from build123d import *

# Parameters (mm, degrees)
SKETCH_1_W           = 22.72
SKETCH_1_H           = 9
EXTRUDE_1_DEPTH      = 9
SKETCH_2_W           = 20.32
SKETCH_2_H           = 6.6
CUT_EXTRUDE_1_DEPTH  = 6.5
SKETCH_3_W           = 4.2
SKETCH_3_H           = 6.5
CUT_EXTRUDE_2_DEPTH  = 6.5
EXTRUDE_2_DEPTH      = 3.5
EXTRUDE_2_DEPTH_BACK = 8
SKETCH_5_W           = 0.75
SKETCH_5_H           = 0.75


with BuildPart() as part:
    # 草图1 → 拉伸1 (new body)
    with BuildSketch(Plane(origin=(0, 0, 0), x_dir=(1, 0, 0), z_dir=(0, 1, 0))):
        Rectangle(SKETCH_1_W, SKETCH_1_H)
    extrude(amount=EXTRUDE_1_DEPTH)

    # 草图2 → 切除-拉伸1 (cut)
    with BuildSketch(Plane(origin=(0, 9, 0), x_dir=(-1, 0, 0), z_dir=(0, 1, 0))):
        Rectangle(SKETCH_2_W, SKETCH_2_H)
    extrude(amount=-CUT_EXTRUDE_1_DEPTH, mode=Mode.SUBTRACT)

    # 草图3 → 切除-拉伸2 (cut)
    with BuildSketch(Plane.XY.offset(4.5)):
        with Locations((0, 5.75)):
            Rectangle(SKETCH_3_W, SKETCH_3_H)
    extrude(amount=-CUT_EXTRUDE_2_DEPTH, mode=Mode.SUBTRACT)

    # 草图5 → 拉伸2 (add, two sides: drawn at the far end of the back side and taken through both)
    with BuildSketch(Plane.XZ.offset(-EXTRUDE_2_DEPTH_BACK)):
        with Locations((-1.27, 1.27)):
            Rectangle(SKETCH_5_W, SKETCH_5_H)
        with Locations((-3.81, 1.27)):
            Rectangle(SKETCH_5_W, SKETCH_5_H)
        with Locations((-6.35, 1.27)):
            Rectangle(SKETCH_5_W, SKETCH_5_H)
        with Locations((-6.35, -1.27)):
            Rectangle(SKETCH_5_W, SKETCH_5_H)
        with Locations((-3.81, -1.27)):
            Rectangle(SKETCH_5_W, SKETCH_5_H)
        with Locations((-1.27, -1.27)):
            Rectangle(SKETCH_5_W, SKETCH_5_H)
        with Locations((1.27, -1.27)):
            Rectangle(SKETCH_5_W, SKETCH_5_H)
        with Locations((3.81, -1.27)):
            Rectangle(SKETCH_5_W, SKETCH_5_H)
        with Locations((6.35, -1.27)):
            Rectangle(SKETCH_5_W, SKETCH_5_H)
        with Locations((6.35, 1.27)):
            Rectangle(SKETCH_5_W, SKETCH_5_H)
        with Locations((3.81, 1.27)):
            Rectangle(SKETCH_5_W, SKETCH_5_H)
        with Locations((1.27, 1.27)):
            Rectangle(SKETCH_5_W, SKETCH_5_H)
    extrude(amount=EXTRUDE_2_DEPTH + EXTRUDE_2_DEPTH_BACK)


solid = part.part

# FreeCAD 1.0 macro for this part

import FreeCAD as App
import Part
import Sketcher
Q = App.Units.Quantity


def add_polygon(sketch, points):
    """Adds a closed chain of lines whose ends are joined by coincident constraints."""
    first, n = sketch.GeometryCount, len(points)
    for a, b in zip(points, points[1:] + points[:1]):
        sketch.addGeometry(Part.LineSegment(App.Vector(*a, 0), App.Vector(*b, 0)), False)
    for i in range(n):
        sketch.addConstraint(Sketcher.Constraint("Coincident", first + i, 2, first + (i + 1) % n, 1))

doc = App.newDocument("Part")
params = doc.addObject("Spreadsheet::Sheet", "Params")
for row, (alias, value) in enumerate([
    ("sketch1_height", "9 mm"),
    ("sketch1_width", "22.72 mm"),
    ("pad1_length", "9 mm"),
    ("sketch2_height", "6.6 mm"),
    ("sketch2_width", "20.32 mm"),
    ("pocket1_length", "6.5 mm"),
    ("sketch3_width", "4.2 mm"),
    ("sketch3_height", "6.5 mm"),
    ("pocket2_length", "6.5 mm"),
    ("sketch4_width", "0.75 mm"),
    ("pad2_length", "3.5 mm"),
    ("pad2_length2", "8 mm"),
], start=1):
    params.set(f"A{row}", alias)
    params.set(f"B{row}", "=" + value)
    params.setAlias(f"B{row}", alias)

body = doc.addObject("PartDesign::Body", "Body")

sketch1 = doc.addObject("Sketcher::SketchObject", "Sketch")
body.addObject(sketch1)
sketch1.AttachmentSupport = (doc.XZ_Plane, [""])
sketch1.MapMode = "FlatFace"
add_polygon(sketch1, [(-11, -4), (-11, 4), (11, 4), (11, -4)])
sketch1.addConstraint(Sketcher.Constraint("Vertical", 0))
sketch1.addConstraint(Sketcher.Constraint("Horizontal", 1))
sketch1.addConstraint(Sketcher.Constraint("Vertical", 2))
sketch1.addConstraint(Sketcher.Constraint("Horizontal", 3))
sketch1.addConstraint(Sketcher.Constraint("Symmetric", 0, 2, 2, 2, -1, 1))
sketch1.addConstraint(Sketcher.Constraint("DistanceY", 0, 1, 0, 2, Q("9 mm")))
sketch1.addConstraint(Sketcher.Constraint("DistanceX", 1, 1, 1, 2, Q("22.72 mm")))
sketch1.setExpression("Constraints[9]", "Params.sketch1_height")
sketch1.setExpression("Constraints[10]", "Params.sketch1_width")
pad1 = doc.addObject("PartDesign::Pad", "Pad")
body.addObject(pad1)
pad1.Profile = sketch1
pad1.setExpression("Length", "Params.pad1_length")
pad1.Reversed = True

sketch2 = doc.addObject("Sketcher::SketchObject", "Sketch001")
body.addObject(sketch2)
sketch2.AttachmentSupport = (doc.XZ_Plane, [""])
sketch2.MapMode = "FlatFace"
sketch2.AttachmentOffset = App.Placement(App.Vector(0, 0, -9), App.Rotation())
add_polygon(sketch2, [(10, 3), (10, -3), (-10, -3), (-10, 3)])
sketch2.addConstraint(Sketcher.Constraint("Vertical", 0))
sketch2.addConstraint(Sketcher.Constraint("Horizontal", 1))
sketch2.addConstraint(Sketcher.Constraint("Vertical", 2))
sketch2.addConstraint(Sketcher.Constraint("Horizontal", 3))
sketch2.addConstraint(Sketcher.Constraint("Symmetric", 0, 2, 2, 2, -1, 1))
sketch2.addConstraint(Sketcher.Constraint("DistanceY", 0, 2, 0, 1, Q("6.6 mm")))
sketch2.addConstraint(Sketcher.Constraint("DistanceX", 1, 2, 1, 1, Q("20.32 mm")))
sketch2.setExpression("Constraints[9]", "Params.sketch2_height")
sketch2.setExpression("Constraints[10]", "Params.sketch2_width")
pocket1 = doc.addObject("PartDesign::Pocket", "Pocket")
body.addObject(pocket1)
pocket1.Profile = sketch2
pocket1.setExpression("Length", "Params.pocket1_length")
pocket1.Reversed = True

sketch3 = doc.addObject("Sketcher::SketchObject", "Sketch002")
body.addObject(sketch3)
sketch3.AttachmentSupport = (doc.XY_Plane, [""])
sketch3.MapMode = "FlatFace"
sketch3.AttachmentOffset = App.Placement(App.Vector(0, 0, 4.5), App.Rotation())
add_polygon(sketch3, [(-2.1, 9), (-2.1, 2.5), (2.1, 2.5), (2.1, 9)])
sketch3.addConstraint(Sketcher.Constraint("Vertical", 0))
sketch3.addConstraint(Sketcher.Constraint("Horizontal", 1))
sketch3.addConstraint(Sketcher.Constraint("Vertical", 2))
sketch3.addConstraint(Sketcher.Constraint("Horizontal", 3))
sketch3.addConstraint(Sketcher.Constraint("DistanceX", 1, 1, 1, 2, Q("4.2 mm")))
sketch3.addConstraint(Sketcher.Constraint("DistanceY", 0, 2, 0, 1, Q("6.5 mm")))
sketch3.addConstraint(Sketcher.Constraint("DistanceY", -1, 1, 2, 2, Q("9 mm")))
sketch3.addConstraint(Sketcher.Constraint("DistanceX", 0, 2, -1, 1, Q("2.1 mm")))
sketch3.setExpression("Constraints[8]", "Params.sketch3_width")
sketch3.setExpression("Constraints[9]", "Params.sketch3_height")
pocket2 = doc.addObject("PartDesign::Pocket", "Pocket001")
body.addObject(pocket2)
pocket2.Profile = sketch3
pocket2.setExpression("Length", "Params.pocket2_length")

sketch4 = doc.addObject("Sketcher::SketchObject", "Sketch003")
body.addObject(sketch4)
sketch4.AttachmentSupport = (doc.XZ_Plane, [""])
sketch4.MapMode = "FlatFace"
add_polygon(sketch4, [(-1.6, 1.6), (-1.6, 0.9), (-0.9, 0.9), (-0.9, 1.6)])
add_polygon(sketch4, [(-4.2, 1.6), (-4.2, 0.9), (-3.4, 0.9), (-3.4, 1.6)])
add_polygon(sketch4, [(-6.7, 1.6), (-6.7, 0.9), (-6, 0.9), (-6, 1.6)])
add_polygon(sketch4, [(-6.7, -0.9), (-6.7, -1.6), (-6, -1.6), (-6, -0.9)])
add_polygon(sketch4, [(-4.2, -0.9), (-4.2, -1.6), (-3.4, -1.6), (-3.4, -0.9)])
add_polygon(sketch4, [(-1.6, -0.9), (-1.6, -1.6), (-0.9, -1.6), (-0.9, -0.9)])
add_polygon(sketch4, [(0.9, -0.9), (0.9, -1.6), (1.6, -1.6), (1.6, -0.9)])
add_polygon(sketch4, [(3.4, -0.9), (3.4, -1.6), (4.2, -1.6), (4.2, -0.9)])
add_polygon(sketch4, [(6, -0.9), (6, -1.6), (6.7, -1.6), (6.7, -0.9)])
add_polygon(sketch4, [(6, 1.6), (6, 0.9), (6.7, 0.9), (6.7, 1.6)])
add_polygon(sketch4, [(3.4, 1.6), (3.4, 0.9), (4.2, 0.9), (4.2, 1.6)])
add_polygon(sketch4, [(0.9, 1.6), (0.9, 0.9), (1.6, 0.9), (1.6, 1.6)])
sketch4.addConstraint(Sketcher.Constraint("Vertical", 0))
sketch4.addConstraint(Sketcher.Constraint("Horizontal", 1))
sketch4.addConstraint(Sketcher.Constraint("Vertical", 2))
sketch4.addConstraint(Sketcher.Constraint("Horizontal", 3))
sketch4.addConstraint(Sketcher.Constraint("Vertical", 4))
sketch4.addConstraint(Sketcher.Constraint("Horizontal", 5))
sketch4.addConstraint(Sketcher.Constraint("Vertical", 6))
sketch4.addConstraint(Sketcher.Constraint("Horizontal", 7))
sketch4.addConstraint(Sketcher.Constraint("Vertical", 8))
sketch4.addConstraint(Sketcher.Constraint("Horizontal", 9))
sketch4.addConstraint(Sketcher.Constraint("Vertical", 10))
sketch4.addConstraint(Sketcher.Constraint("Horizontal", 11))
sketch4.addConstraint(Sketcher.Constraint("Vertical", 12))
sketch4.addConstraint(Sketcher.Constraint("Horizontal", 13))
sketch4.addConstraint(Sketcher.Constraint("Vertical", 14))
sketch4.addConstraint(Sketcher.Constraint("Horizontal", 15))
sketch4.addConstraint(Sketcher.Constraint("Vertical", 16))
sketch4.addConstraint(Sketcher.Constraint("Horizontal", 17))
sketch4.addConstraint(Sketcher.Constraint("Vertical", 18))
sketch4.addConstraint(Sketcher.Constraint("Horizontal", 19))
sketch4.addConstraint(Sketcher.Constraint("Vertical", 20))
sketch4.addConstraint(Sketcher.Constraint("Horizontal", 21))
sketch4.addConstraint(Sketcher.Constraint("Vertical", 22))
sketch4.addConstraint(Sketcher.Constraint("Horizontal", 23))
sketch4.addConstraint(Sketcher.Constraint("Vertical", 24))
sketch4.addConstraint(Sketcher.Constraint("Horizontal", 25))
sketch4.addConstraint(Sketcher.Constraint("Vertical", 26))
sketch4.addConstraint(Sketcher.Constraint("Horizontal", 27))
sketch4.addConstraint(Sketcher.Constraint("Vertical", 28))
sketch4.addConstraint(Sketcher.Constraint("Horizontal", 29))
sketch4.addConstraint(Sketcher.Constraint("Vertical", 30))
sketch4.addConstraint(Sketcher.Constraint("Horizontal", 31))
sketch4.addConstraint(Sketcher.Constraint("Vertical", 32))
sketch4.addConstraint(Sketcher.Constraint("Horizontal", 33))
sketch4.addConstraint(Sketcher.Constraint("Vertical", 34))
sketch4.addConstraint(Sketcher.Constraint("Horizontal", 35))
sketch4.addConstraint(Sketcher.Constraint("Vertical", 36))
sketch4.addConstraint(Sketcher.Constraint("Horizontal", 37))
sketch4.addConstraint(Sketcher.Constraint("Vertical", 38))
sketch4.addConstraint(Sketcher.Constraint("Horizontal", 39))
sketch4.addConstraint(Sketcher.Constraint("Vertical", 40))
sketch4.addConstraint(Sketcher.Constraint("Horizontal", 41))
sketch4.addConstraint(Sketcher.Constraint("Vertical", 42))
sketch4.addConstraint(Sketcher.Constraint("Horizontal", 43))
sketch4.addConstraint(Sketcher.Constraint("Vertical", 44))
sketch4.addConstraint(Sketcher.Constraint("Horizontal", 45))
sketch4.addConstraint(Sketcher.Constraint("Vertical", 46))
sketch4.addConstraint(Sketcher.Constraint("Horizontal", 47))
sketch4.addConstraint(Sketcher.Constraint("Symmetric", 2, 2, 24, 2, -1, 1))
sketch4.addConstraint(Sketcher.Constraint("Symmetric", 0, 2, 26, 2, -1, 1))
sketch4.addConstraint(Sketcher.Constraint("Symmetric", 6, 2, 28, 2, -1, 1))
sketch4.addConstraint(Sketcher.Constraint("Symmetric", 4, 2, 30, 2, -1, 1))
sketch4.addConstraint(Sketcher.Constraint("Symmetric", 10, 2, 32, 2, -1, 1))
sketch4.addConstraint(Sketcher.Constraint("Symmetric", 8, 2, 34, 2, -1, 1))
sketch4.addConstraint(Sketcher.Constraint("Symmetric", 14, 2, 36, 2, -1, 1))
sketch4.addConstraint(Sketcher.Constraint("Symmetric", 12, 2, 38, 2, -1, 1))
sketch4.addConstraint(Sketcher.Constraint("Symmetric", 18, 2, 40, 2, -1, 1))
sketch4.addConstraint(Sketcher.Constraint("Symmetric", 16, 2, 42, 2, -1, 1))
sketch4.addConstraint(Sketcher.Constraint("Symmetric", 22, 2, 44, 2, -1, 1))
sketch4.addConstraint(Sketcher.Constraint("Symmetric", 20, 2, 46, 2, -1, 1))
sketch4.addConstraint(Sketcher.Constraint("Symmetric", 21, 2, 24, 2, -2))
sketch4.addConstraint(Sketcher.Constraint("Symmetric", 23, 2, 26, 2, -2))
sketch4.addConstraint(Sketcher.Constraint("Symmetric", 17, 2, 28, 2, -2))
sketch4.addConstraint(Sketcher.Constraint("Symmetric", 19, 2, 30, 2, -2))
sketch4.addConstraint(Sketcher.Constraint("Symmetric", 13, 2, 32, 2, -2))
sketch4.addConstraint(Sketcher.Constraint("Symmetric", 15, 2, 34, 2, -2))
sketch4.addConstraint(Sketcher.Constraint("Horizontal", 1, 2, 4, 2))
sketch4.addConstraint(Sketcher.Constraint("Horizontal", 3, 2, 6, 2))
sketch4.addConstraint(Sketcher.Constraint("Horizontal", 5, 2, 8, 2))
sketch4.addConstraint(Sketcher.Constraint("Horizontal", 7, 2, 10, 2))
sketch4.addConstraint(Sketcher.Constraint("Equal", 3, 5))
sketch4.addConstraint(Sketcher.Constraint("Equal", 7, 9))
sketch4.addConstraint(Sketcher.Constraint("Equal", 47, 0))
sketch4.addConstraint(Sketcher.Constraint("DistanceX", 1, 1, 1, 2, Q("0.75 mm")))
sketch4.addConstraint(Sketcher.Constraint("DistanceX", 4, 2, 0, 2, Q("2.54 mm")))
sketch4.addConstraint(Sketcher.Constraint("DistanceX", 8, 2, 4, 2, Q("2.54 mm")))
sketch4.addConstraint(Sketcher.Constraint("DistanceY", 12, 2, 8, 2, Q("2.54 mm")))
sketch4.addConstraint(Sketcher.Constraint("DistanceX", 21, 2, 24, 2, Q("1.79 mm")))
sketch4.setExpression("Constraints[121]", "Params.sketch4_width")
pad2 = doc.addObject("PartDesign::Pad", "Pad001")
body.addObject(pad2)
pad2.Profile = sketch4
pad2.Type = "TwoLengths"
pad2.setExpression("Length", "Params.pad2_length")
pad2.setExpression("Length2", "Params.pad2_length2")

doc.recompute()
